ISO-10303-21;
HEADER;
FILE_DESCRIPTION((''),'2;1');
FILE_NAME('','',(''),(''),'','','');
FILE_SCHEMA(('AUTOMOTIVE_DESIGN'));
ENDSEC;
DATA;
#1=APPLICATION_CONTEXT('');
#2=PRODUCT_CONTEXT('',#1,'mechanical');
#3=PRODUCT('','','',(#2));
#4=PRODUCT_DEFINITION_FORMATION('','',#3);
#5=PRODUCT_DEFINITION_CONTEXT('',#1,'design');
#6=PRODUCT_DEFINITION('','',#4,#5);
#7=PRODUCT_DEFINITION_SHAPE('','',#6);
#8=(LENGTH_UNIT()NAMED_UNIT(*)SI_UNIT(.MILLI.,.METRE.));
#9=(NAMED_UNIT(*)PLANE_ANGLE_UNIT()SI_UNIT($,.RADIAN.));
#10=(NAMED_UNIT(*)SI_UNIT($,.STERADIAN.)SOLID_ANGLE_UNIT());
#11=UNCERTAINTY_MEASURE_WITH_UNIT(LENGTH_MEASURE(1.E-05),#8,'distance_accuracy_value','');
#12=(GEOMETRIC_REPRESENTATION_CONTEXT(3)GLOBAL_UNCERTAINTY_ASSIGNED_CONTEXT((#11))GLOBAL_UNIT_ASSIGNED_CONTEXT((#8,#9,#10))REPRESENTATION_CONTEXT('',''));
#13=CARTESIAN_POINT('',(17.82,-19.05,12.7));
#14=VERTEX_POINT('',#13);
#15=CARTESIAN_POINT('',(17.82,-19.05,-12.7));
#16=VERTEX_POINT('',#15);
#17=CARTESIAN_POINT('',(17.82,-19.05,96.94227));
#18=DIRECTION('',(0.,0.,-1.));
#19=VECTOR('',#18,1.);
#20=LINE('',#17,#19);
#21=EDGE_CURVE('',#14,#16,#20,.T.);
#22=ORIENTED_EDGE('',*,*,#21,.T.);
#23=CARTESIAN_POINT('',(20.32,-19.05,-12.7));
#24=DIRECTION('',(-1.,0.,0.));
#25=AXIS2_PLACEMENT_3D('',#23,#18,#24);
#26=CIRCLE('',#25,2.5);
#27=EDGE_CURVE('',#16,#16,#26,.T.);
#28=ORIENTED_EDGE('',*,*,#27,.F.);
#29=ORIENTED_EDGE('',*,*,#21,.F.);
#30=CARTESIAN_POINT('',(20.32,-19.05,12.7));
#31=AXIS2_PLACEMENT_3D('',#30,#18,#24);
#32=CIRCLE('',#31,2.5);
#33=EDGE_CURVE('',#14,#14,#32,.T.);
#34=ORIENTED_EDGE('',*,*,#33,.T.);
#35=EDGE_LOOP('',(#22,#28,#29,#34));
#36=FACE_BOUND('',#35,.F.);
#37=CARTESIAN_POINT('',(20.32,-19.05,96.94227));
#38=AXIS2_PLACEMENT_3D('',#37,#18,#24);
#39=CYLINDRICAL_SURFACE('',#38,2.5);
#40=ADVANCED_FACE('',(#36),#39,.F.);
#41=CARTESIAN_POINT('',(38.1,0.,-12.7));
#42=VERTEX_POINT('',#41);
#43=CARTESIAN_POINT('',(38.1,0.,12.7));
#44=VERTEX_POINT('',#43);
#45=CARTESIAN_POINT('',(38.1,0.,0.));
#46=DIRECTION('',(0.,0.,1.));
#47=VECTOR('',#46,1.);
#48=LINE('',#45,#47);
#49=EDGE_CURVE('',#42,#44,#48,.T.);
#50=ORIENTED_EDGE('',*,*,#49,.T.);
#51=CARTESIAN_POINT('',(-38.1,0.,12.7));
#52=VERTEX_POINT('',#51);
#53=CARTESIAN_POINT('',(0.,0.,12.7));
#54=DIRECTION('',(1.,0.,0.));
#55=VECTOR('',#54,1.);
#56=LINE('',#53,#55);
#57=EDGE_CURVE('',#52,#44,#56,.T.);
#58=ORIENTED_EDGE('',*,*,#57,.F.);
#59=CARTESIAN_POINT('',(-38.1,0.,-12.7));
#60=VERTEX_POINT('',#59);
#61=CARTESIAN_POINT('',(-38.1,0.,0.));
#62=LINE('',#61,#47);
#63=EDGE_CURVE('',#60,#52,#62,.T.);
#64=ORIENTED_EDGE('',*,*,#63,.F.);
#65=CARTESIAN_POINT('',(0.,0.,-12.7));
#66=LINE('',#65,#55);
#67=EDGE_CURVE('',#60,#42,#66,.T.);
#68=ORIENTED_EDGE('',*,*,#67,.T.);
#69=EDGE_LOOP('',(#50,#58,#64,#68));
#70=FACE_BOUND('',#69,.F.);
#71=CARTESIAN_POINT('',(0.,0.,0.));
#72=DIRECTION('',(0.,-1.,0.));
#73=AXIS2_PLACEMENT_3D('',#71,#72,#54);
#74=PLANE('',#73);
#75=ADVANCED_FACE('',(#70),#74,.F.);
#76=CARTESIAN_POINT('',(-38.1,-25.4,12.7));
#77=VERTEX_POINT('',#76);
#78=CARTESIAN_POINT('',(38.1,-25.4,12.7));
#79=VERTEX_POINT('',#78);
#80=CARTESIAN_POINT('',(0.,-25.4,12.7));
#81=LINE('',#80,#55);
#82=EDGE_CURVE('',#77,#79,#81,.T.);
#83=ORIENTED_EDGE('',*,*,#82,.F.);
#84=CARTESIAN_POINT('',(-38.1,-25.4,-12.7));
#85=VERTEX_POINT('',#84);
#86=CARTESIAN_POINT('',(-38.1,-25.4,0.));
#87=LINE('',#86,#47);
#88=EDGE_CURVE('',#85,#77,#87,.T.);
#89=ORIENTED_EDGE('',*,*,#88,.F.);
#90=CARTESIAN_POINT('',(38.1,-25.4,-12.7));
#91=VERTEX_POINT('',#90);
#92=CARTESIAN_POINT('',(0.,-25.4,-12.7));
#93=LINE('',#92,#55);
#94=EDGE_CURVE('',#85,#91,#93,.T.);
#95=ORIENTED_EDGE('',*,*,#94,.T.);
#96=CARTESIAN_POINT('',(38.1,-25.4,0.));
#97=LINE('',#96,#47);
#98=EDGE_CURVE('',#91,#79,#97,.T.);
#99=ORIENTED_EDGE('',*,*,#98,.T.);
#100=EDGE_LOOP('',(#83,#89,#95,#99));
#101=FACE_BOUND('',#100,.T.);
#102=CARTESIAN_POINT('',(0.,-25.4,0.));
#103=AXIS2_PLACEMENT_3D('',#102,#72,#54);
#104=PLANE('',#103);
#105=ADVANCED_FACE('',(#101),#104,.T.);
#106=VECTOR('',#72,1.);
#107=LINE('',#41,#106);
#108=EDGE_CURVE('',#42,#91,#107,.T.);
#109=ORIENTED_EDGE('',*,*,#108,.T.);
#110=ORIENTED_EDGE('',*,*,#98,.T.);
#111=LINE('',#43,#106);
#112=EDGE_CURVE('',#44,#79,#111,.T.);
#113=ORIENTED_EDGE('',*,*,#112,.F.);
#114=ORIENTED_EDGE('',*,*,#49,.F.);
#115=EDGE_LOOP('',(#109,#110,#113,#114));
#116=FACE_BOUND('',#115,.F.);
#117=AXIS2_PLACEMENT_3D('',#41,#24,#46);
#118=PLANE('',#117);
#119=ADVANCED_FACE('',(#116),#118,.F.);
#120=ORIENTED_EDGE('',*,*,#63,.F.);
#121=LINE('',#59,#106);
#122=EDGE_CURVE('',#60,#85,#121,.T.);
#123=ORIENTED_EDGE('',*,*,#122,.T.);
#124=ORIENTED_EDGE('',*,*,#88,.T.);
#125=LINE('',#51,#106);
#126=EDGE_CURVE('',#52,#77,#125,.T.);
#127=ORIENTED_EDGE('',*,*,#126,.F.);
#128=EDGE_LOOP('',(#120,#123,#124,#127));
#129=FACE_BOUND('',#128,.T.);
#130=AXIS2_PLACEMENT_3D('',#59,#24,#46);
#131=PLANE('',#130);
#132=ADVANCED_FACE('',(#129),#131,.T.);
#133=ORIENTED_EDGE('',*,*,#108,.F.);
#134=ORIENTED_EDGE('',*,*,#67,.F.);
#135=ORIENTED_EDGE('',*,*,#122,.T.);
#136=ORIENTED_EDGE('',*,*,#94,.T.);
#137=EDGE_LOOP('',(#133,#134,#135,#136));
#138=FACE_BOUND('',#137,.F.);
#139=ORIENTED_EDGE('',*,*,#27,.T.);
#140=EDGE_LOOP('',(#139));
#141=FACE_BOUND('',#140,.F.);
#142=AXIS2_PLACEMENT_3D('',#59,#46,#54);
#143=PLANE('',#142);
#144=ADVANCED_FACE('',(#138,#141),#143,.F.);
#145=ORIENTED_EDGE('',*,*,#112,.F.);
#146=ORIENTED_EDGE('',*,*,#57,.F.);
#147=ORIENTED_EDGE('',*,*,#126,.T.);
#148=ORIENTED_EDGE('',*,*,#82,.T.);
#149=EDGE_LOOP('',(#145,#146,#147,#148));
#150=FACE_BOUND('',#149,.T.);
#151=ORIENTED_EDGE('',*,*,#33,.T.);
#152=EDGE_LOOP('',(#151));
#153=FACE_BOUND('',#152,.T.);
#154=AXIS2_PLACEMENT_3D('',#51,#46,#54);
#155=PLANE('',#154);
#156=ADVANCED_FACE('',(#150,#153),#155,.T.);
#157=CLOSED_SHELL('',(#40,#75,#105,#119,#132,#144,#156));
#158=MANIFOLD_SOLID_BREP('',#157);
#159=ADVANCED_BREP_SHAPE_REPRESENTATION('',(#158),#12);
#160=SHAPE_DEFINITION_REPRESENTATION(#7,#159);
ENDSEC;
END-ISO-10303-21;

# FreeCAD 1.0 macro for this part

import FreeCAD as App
import Part
import Sketcher

V = App.Vector
Q = App.Units.Quantity


def add_polygon(sketch, points):
    """Adds a closed chain of lines whose ends are joined by coincident constraints."""
    first, n = sketch.GeometryCount, len(points)
    for a, b in zip(points, points[1:] + points[:1]):
        sketch.addGeometry(Part.LineSegment(App.Vector(*a, 0), App.Vector(*b, 0)), False)
    for i in range(n):
        sketch.addConstraint(Sketcher.Constraint("Coincident", first + i, 2, first + (i + 1) % n, 1))

doc = App.newDocument("Part")
body = doc.addObject("PartDesign::Body", "Body")

# Sketch on XZ plane
sketch1 = doc.addObject("Sketcher::SketchObject", "Sketch")
body.addObject(sketch1)
sketch1.AttachmentSupport = (doc.XZ_Plane, [""])
sketch1.MapMode = "FlatFace"
add_polygon(sketch1, [(-38, 13), (-38, -13), (38, -13), (38, 13)])  # lines 0-3
sketch1.addConstraint([
    Sketcher.Constraint("Vertical", 0),
    Sketcher.Constraint("Horizontal", 1),
    Sketcher.Constraint("Vertical", 2),
    Sketcher.Constraint("Horizontal", 3),
    Sketcher.Constraint("Symmetric", 0, 2, 2, 2, -1, 1),
    Sketcher.Constraint("DistanceX", 1, 1, 1, 2, Q("3 in")),
    Sketcher.Constraint("DistanceY", 0, 2, 0, 1, Q("1 in")),
])
pad1 = doc.addObject("PartDesign::Pad", "Pad")
body.addObject(pad1)
pad1.Profile = sketch1
pad1.Length = Q("1 in")

# Sketch on XY plane
sketch2 = doc.addObject("Sketcher::SketchObject", "Sketch001")
body.addObject(sketch2)
sketch2.AttachmentSupport = (doc.XY_Plane, [""])
sketch2.MapMode = "FlatFace"
sketch2.AttachmentOffset = App.Placement(V(0, 0, 0.5 * 25.4), App.Rotation())
sketch2.addGeometry(Part.Circle(V(20.3, -19.1, 0), V(0, 0, 1), 2.5), False)
sketch2.addConstraint([
    Sketcher.Constraint("DistanceX", -1, 1, 0, 3, Q("0.8 in")),
    Sketcher.Constraint("Diameter", 0, 5.0),
    Sketcher.Constraint("DistanceY", 0, 3, -1, 1, Q("0.75 in")),
])
doc.recompute()
hole = doc.addObject("PartDesign::Hole", "Hole")
body.addObject(hole)
hole.Profile = sketch2
hole.ThreadType = "None"
hole.Diameter = 5
hole.DepthType = "ThroughAll"

doc.recompute()
